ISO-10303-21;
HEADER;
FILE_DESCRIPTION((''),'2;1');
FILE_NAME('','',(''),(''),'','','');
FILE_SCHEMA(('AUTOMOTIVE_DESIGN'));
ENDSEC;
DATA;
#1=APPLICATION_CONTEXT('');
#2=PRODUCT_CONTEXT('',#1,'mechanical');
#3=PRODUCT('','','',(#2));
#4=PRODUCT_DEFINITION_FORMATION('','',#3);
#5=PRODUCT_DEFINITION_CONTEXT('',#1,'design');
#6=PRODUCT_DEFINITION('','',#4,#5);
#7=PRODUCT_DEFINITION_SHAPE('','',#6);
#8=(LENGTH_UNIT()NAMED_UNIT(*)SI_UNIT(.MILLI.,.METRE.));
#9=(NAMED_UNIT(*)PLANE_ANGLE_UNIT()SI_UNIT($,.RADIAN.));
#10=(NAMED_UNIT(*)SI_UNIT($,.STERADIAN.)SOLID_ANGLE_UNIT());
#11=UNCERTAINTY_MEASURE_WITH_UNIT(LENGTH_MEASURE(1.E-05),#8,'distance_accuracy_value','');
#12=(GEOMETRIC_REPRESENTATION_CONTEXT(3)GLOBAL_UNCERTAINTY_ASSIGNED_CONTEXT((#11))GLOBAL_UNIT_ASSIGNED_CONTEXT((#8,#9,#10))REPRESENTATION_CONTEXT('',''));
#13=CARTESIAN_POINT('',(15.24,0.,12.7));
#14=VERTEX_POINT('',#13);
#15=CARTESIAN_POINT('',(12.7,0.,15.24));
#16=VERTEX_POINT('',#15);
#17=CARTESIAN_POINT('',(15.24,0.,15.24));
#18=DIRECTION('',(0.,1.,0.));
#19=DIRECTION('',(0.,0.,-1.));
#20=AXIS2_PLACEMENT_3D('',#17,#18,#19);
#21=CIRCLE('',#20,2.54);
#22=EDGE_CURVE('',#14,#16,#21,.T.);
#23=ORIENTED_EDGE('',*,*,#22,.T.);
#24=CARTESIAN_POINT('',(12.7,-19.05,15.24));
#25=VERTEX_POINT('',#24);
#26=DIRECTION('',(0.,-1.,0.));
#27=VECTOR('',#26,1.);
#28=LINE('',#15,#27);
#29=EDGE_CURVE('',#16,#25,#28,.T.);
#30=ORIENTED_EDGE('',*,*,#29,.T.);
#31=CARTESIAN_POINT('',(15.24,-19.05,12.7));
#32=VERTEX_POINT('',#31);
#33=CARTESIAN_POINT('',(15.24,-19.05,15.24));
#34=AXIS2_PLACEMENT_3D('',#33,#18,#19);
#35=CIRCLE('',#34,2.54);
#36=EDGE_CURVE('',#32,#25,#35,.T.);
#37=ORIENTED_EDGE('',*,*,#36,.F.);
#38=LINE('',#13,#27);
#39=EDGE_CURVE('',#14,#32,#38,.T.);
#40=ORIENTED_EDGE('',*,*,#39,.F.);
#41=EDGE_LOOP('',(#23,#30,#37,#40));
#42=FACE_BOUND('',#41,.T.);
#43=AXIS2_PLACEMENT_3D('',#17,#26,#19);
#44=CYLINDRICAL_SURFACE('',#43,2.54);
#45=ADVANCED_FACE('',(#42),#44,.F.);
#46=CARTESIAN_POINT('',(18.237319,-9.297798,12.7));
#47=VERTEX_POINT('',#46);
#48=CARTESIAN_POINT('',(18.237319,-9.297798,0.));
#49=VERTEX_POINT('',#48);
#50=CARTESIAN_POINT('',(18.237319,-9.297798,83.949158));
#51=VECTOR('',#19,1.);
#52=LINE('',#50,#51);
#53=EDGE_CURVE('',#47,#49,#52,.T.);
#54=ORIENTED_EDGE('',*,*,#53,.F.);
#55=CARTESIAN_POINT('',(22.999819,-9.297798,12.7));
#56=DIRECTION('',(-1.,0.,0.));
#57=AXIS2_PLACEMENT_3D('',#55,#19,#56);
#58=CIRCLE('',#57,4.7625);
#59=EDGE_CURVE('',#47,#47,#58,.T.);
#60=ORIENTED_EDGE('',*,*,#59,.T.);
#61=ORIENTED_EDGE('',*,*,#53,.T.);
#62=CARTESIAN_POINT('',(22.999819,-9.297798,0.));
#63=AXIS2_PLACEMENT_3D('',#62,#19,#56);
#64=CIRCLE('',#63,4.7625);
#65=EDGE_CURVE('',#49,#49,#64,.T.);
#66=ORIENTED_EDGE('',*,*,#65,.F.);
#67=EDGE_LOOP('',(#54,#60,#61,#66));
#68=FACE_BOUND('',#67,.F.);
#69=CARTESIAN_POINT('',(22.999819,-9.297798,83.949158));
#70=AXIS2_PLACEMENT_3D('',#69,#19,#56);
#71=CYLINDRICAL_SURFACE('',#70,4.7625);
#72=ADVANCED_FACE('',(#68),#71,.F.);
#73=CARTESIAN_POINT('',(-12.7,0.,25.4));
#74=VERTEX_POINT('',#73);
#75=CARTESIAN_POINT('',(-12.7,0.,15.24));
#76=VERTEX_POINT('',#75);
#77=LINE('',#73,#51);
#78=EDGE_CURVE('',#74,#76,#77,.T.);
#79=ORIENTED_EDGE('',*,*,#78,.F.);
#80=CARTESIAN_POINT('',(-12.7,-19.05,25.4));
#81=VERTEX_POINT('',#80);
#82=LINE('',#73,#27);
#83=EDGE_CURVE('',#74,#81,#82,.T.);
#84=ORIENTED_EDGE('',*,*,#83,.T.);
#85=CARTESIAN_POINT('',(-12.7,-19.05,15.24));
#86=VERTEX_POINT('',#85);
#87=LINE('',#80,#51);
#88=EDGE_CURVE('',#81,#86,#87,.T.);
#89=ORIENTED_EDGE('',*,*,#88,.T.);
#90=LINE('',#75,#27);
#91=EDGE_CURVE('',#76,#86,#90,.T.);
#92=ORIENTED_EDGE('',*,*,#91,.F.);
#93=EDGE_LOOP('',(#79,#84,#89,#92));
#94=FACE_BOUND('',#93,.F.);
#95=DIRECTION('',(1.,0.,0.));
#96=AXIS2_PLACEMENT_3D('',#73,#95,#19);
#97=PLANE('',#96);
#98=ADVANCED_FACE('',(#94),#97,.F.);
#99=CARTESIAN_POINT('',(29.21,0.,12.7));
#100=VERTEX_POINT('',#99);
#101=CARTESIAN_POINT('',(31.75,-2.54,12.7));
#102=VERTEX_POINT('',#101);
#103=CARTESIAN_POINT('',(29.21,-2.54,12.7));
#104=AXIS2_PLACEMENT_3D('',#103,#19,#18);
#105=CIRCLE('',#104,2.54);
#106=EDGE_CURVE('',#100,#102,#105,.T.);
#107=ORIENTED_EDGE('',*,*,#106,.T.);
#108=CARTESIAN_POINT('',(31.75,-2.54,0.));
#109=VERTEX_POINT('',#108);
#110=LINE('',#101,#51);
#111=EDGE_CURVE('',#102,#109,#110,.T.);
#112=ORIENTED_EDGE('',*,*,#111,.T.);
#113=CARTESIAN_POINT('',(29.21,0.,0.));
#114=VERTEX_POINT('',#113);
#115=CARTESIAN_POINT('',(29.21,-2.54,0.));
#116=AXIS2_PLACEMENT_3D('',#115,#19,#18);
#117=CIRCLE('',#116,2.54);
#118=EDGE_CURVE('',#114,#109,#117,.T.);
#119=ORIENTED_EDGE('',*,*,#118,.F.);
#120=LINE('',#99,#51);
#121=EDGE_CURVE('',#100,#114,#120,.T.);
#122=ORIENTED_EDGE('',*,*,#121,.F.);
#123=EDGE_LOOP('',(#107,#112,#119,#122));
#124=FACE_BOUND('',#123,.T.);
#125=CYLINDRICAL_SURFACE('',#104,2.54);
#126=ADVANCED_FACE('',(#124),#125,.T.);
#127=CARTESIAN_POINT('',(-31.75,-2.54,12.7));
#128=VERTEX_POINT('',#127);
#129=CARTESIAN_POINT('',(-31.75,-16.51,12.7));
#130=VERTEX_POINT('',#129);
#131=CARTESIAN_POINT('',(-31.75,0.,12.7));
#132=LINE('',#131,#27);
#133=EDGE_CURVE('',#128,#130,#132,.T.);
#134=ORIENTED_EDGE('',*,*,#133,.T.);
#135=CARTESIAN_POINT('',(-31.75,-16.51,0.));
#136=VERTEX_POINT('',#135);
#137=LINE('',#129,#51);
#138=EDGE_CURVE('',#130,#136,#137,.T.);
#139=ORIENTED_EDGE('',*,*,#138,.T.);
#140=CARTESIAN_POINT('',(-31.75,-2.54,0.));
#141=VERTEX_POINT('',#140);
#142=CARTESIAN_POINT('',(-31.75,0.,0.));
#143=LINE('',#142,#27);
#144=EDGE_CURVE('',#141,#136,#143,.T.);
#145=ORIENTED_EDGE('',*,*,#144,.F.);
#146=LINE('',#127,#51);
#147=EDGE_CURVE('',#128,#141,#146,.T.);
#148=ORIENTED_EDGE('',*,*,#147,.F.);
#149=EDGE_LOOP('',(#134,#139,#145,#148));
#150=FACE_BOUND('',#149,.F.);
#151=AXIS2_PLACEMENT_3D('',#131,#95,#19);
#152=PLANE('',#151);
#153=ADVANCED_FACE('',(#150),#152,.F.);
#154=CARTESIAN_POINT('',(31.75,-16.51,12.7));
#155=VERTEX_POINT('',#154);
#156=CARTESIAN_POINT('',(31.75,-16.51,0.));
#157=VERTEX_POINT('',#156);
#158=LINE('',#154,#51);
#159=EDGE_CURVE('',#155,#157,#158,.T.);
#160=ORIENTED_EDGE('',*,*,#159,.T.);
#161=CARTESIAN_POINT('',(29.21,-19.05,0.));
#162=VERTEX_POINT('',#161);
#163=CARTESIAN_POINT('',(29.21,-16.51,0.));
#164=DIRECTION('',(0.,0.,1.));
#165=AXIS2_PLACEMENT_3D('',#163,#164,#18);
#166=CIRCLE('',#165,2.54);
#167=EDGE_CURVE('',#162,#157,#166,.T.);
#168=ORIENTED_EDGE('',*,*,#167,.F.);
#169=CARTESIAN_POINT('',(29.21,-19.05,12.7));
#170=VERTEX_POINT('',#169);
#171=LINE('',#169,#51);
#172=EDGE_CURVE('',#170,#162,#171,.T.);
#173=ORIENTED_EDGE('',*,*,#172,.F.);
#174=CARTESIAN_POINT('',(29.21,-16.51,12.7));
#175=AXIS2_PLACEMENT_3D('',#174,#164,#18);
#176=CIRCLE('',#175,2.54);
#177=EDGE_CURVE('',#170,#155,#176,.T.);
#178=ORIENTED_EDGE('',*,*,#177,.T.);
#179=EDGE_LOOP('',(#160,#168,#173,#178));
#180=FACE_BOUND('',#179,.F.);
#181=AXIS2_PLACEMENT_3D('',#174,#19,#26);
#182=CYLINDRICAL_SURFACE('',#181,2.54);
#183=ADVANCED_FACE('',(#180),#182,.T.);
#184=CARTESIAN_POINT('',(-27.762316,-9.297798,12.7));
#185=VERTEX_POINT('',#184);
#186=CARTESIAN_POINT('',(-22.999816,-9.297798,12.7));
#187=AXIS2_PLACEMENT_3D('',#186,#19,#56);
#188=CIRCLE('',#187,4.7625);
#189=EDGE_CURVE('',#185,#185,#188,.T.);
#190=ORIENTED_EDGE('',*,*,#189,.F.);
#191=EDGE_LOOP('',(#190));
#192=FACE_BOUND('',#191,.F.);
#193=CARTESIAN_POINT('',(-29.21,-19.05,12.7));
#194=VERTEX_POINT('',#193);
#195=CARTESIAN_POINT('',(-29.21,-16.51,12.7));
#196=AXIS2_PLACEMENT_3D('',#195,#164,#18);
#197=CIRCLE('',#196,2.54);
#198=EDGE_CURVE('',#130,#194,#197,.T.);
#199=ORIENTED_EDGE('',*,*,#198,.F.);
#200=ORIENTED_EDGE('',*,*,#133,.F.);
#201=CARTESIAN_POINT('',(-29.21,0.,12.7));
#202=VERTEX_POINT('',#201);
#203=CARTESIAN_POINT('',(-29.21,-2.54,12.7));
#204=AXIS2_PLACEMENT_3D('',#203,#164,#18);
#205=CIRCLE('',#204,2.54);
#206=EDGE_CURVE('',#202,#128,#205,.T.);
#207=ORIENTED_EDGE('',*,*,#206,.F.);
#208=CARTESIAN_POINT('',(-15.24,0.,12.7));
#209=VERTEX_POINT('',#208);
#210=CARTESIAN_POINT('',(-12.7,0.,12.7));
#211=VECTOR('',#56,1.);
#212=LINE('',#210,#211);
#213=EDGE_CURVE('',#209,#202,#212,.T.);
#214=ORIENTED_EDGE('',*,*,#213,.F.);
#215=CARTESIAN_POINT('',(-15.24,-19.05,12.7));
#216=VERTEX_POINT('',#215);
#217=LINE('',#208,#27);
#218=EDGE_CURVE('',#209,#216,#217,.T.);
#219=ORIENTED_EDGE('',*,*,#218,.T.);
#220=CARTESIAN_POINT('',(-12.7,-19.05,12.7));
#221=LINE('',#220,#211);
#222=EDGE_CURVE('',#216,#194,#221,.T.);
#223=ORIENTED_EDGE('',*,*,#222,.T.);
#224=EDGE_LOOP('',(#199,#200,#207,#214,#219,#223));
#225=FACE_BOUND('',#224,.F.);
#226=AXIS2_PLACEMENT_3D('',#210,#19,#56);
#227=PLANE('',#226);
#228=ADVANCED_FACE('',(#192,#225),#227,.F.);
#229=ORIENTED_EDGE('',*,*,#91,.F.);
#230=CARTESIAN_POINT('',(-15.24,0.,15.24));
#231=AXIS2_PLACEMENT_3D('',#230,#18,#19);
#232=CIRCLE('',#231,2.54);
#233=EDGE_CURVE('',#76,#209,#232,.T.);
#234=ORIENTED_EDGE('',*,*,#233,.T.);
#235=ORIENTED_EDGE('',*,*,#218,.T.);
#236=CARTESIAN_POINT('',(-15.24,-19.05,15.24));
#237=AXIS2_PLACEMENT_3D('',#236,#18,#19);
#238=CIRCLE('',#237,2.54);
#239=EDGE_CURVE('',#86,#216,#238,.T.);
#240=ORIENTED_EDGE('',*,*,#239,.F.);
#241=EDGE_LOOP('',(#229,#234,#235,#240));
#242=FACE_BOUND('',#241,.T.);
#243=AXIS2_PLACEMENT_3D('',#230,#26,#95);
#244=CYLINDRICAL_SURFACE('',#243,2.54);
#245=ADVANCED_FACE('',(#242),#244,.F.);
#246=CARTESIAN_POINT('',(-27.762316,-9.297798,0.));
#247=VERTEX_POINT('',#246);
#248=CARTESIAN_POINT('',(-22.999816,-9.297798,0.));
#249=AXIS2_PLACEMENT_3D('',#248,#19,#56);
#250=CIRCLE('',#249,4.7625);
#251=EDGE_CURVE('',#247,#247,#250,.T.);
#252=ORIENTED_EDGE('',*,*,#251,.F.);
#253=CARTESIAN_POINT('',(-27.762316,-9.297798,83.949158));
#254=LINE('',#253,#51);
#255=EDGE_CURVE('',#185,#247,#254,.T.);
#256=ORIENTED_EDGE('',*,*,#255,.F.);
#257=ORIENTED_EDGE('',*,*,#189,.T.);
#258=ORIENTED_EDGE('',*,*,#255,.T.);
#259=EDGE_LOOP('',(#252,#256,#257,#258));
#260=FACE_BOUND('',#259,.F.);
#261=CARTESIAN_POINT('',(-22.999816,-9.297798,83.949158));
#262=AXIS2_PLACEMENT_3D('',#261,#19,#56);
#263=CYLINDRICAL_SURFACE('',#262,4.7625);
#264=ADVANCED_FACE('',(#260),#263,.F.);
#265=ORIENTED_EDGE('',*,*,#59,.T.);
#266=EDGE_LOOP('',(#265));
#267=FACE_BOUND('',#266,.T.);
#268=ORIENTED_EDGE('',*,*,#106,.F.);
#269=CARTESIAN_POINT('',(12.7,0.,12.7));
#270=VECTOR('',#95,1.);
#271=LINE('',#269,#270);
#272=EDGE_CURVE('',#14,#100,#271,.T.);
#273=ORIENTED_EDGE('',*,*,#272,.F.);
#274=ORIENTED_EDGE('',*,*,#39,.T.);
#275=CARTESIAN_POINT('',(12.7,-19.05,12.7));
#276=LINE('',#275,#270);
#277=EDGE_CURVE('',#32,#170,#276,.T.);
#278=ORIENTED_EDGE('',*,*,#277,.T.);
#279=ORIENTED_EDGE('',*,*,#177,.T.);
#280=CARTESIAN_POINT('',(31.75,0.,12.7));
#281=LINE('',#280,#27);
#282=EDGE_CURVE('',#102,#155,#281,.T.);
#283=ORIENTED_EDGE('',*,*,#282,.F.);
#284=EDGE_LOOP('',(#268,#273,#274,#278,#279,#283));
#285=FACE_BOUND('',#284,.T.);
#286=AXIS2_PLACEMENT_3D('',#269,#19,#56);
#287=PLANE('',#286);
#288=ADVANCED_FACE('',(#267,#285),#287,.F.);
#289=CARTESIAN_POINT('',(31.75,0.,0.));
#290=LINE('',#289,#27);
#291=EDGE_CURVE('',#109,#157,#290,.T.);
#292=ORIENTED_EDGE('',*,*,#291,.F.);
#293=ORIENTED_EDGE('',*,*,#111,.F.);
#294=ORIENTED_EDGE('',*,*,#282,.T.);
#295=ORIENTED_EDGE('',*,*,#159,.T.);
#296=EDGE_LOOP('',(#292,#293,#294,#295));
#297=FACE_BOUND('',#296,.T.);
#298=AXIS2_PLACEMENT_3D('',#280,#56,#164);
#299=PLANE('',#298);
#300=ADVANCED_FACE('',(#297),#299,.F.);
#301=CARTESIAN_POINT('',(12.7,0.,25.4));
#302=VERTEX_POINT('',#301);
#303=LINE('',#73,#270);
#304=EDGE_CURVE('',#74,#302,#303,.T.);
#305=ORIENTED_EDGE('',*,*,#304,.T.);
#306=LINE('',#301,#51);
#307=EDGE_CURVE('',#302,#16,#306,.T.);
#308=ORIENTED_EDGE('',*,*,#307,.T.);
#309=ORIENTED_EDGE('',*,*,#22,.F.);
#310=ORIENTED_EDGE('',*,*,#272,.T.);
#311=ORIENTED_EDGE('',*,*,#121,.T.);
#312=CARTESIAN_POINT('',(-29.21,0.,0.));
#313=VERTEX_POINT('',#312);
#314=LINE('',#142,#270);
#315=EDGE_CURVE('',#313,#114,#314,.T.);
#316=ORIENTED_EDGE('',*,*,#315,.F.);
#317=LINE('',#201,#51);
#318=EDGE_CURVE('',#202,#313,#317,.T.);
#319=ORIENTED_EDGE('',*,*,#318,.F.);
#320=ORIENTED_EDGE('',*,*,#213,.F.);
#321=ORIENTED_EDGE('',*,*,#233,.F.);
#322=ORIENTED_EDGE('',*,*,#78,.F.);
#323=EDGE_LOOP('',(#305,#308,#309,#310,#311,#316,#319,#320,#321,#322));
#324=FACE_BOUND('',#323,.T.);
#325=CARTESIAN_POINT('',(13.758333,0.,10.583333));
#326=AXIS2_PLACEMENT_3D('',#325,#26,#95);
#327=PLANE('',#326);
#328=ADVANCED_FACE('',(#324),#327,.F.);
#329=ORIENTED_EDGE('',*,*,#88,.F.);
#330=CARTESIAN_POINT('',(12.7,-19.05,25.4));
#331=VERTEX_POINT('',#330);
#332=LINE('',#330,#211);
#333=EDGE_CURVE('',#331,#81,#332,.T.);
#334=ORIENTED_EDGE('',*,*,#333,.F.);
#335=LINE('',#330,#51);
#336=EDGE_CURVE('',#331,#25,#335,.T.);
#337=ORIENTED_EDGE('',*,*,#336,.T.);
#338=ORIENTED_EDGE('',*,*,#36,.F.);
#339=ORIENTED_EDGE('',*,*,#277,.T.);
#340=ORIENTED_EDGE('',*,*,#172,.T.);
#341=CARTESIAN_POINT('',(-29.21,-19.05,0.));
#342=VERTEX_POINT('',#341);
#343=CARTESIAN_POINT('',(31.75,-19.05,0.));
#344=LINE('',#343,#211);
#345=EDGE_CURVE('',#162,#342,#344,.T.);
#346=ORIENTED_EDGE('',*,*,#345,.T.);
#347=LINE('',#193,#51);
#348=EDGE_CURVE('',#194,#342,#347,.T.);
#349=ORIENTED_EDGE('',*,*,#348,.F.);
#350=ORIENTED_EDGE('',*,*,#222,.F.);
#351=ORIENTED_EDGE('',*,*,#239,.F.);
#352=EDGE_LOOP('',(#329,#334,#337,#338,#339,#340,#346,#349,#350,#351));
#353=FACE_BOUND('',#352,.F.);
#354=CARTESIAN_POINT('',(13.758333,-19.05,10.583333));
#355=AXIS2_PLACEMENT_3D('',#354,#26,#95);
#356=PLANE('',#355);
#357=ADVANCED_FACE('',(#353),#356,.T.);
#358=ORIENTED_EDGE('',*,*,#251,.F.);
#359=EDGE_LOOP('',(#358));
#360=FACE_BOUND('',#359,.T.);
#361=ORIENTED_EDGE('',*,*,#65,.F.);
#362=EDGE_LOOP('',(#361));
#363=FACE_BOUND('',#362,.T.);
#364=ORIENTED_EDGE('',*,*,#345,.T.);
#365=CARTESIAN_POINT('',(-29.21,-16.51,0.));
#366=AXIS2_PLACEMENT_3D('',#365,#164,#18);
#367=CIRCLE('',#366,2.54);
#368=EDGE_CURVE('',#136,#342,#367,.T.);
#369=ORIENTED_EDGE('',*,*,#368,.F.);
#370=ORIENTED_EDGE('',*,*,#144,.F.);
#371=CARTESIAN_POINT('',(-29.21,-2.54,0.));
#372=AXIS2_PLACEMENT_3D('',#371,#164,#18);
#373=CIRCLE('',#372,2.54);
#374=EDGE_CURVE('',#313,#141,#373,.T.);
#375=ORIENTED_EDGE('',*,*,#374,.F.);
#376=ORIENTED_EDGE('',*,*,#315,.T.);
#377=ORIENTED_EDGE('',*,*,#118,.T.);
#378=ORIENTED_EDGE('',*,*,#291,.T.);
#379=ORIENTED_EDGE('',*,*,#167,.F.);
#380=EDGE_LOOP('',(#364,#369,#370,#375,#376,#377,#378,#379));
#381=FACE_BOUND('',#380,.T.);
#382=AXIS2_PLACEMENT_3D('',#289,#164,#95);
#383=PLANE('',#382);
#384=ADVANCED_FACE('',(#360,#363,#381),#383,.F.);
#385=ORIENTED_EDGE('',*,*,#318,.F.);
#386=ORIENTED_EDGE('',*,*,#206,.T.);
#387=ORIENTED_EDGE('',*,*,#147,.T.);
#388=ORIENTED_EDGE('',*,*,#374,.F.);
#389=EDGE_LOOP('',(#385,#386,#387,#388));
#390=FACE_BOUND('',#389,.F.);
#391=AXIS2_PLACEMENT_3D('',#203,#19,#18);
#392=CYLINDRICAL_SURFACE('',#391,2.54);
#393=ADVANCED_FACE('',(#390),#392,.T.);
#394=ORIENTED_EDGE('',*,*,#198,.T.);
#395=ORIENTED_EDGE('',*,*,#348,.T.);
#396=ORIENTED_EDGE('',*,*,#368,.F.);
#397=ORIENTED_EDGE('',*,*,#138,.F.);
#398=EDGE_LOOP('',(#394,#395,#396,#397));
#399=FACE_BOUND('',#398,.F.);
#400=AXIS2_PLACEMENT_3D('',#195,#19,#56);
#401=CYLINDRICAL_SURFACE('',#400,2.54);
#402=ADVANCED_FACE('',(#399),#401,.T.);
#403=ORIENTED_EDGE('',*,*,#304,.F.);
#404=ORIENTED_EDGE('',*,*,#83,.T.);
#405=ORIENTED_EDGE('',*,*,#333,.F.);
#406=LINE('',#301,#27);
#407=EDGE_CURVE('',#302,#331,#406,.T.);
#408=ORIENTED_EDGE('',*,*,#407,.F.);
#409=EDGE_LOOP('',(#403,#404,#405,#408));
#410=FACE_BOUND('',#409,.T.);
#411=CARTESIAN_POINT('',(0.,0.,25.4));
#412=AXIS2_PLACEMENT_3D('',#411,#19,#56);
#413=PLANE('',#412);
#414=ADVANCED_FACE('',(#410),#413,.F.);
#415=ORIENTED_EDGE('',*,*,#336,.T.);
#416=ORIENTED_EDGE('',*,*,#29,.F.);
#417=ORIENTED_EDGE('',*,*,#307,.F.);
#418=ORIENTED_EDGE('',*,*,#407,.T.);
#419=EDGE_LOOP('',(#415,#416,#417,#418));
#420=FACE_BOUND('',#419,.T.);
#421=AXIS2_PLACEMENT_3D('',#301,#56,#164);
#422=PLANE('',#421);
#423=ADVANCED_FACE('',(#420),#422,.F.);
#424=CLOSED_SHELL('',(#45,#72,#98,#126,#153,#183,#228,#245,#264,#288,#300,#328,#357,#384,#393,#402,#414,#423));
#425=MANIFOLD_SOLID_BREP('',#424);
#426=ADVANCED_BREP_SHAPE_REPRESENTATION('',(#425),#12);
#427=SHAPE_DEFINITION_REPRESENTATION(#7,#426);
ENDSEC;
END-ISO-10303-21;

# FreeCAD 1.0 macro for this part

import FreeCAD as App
import Part
import Sketcher
from FreeCAD import Vector
Q = App.Units.Quantity


def edges_at(feature, points):
    """Names of the edges that pass closest to the given points."""
    edges = feature.Shape.Edges
    near = lambda p: min(range(len(edges)), key=lambda i: edges[i].distToShape(Part.Vertex(*p))[0])
    return sorted({f"Edge{near(p) + 1}" for p in points})


def add_polygon(sketch, points):
    """Adds a closed chain of lines whose ends are joined by coincident constraints."""
    first, n = sketch.GeometryCount, len(points)
    for a, b in zip(points, points[1:] + points[:1]):
        sketch.addGeometry(Part.LineSegment(App.Vector(*a, 0), App.Vector(*b, 0)), False)
    for i in range(n):
        sketch.addConstraint(Sketcher.Constraint("Coincident", first + i, 2, first + (i + 1) % n, 1))

doc = App.newDocument("Part")
body = doc.addObject("PartDesign::Body", "Body")

sketch1 = body.newObject("Sketcher::SketchObject", "Sketch")
sketch1.AttachmentSupport = (doc.getObject("XZ_Plane"), [""])
sketch1.MapMode = "FlatFace"
add_polygon(sketch1, [(-31.75, 0), (0, 0), (0, 25.4), (-12.7, 25.4), (-12.7, 12.7), (-31.75, 12.7)])
sketch1.addConstraint([
    Sketcher.Constraint("Horizontal", 0),
    Sketcher.Constraint("Vertical", 1),
    Sketcher.Constraint("Horizontal", 2),
    Sketcher.Constraint("Vertical", 3),
    Sketcher.Constraint("Horizontal", 4),
    Sketcher.Constraint("Vertical", 5),
    Sketcher.Constraint("Coincident", 0, 2, -1, 1),
    Sketcher.Constraint("Equal", 2, 3),
    Sketcher.Constraint("Equal", 3, 5),
    Sketcher.Constraint("DistanceY", 1, 1, 1, 2, Q("1 in")),
    Sketcher.Constraint("DistanceX", 0, 1, 0, 2, Q("1.25 in")),
])
pad1 = body.newObject("PartDesign::Pad", "Pad")
pad1.Profile = sketch1
pad1.Length = Q("0.75 in")
body2 = doc.addObject("PartDesign::Body", "Body001")
doc.recompute()

body2.BaseFeature = body
doc.recompute()

mirroring = doc.addObject("Part::Mirroring", "Mirroring")
mirroring.Source = body
mirroring.Base = Vector(0, -9.525, 12.7)
mirroring.Normal = Vector(1, 0, 0)
body3 = doc.addObject("PartDesign::Body", "Body002")
body3.BaseFeature = mirroring
boolean = body2.newObject("PartDesign::Boolean", "Boolean")
boolean.Type = "Fuse"
boolean.addObjects([body3])
doc.recompute()

fillet = body2.newObject("PartDesign::Fillet", "Fillet")
fillet.Base = (boolean, edges_at(boolean, [
    (-31.75, -19.05, 6.35),
    (-31.75, 0, 6.35),
    (31.75, -19.05, 6.35),
    (31.75, 0, 6.35),
    (12.7, -9.525, 12.7),
    (-12.7, -9.525, 12.7),
]))
fillet.Radius = Q("0.1 in")

sketch2 = body2.newObject("Sketcher::SketchObject", "Sketch001")
sketch2.AttachmentSupport = (doc.getObject("XY_Plane001"), [""])
sketch2.MapMode = "FlatFace"
sketch2.AttachmentOffset = App.Placement(Vector(0, 0, 0.51 * 25.4), App.Rotation())
sketch2.addGeometry([
    Part.Circle(Vector(-22.999816, -9.297798, 0), Vector(0, 0, 1), 4.7625),
    Part.Circle(Vector(22.999819, -9.297798, 0), Vector(0, 0, 1), 4.7625),
], False)
sketch2.addConstraint([
    Sketcher.Constraint("Equal", 0, 1),
    Sketcher.Constraint("Symmetric", 0, 3, 1, 3, -2),
    Sketcher.Constraint("Diameter", 0, Q("0.375 in")),
    Sketcher.Constraint("DistanceY", 0, 3, -1, 1, 9.297798),
    Sketcher.Constraint("DistanceX", -1, 1, 1, 3, 22.999819),
])
doc.recompute()
hole = body2.newObject("PartDesign::Hole", "Hole")
hole.Profile = sketch2
hole.ThreadType = "None"
hole.Diameter = Q("0.375 in")
hole.DepthType = "ThroughAll"
mirroring.Visibility = False

doc.recompute()
